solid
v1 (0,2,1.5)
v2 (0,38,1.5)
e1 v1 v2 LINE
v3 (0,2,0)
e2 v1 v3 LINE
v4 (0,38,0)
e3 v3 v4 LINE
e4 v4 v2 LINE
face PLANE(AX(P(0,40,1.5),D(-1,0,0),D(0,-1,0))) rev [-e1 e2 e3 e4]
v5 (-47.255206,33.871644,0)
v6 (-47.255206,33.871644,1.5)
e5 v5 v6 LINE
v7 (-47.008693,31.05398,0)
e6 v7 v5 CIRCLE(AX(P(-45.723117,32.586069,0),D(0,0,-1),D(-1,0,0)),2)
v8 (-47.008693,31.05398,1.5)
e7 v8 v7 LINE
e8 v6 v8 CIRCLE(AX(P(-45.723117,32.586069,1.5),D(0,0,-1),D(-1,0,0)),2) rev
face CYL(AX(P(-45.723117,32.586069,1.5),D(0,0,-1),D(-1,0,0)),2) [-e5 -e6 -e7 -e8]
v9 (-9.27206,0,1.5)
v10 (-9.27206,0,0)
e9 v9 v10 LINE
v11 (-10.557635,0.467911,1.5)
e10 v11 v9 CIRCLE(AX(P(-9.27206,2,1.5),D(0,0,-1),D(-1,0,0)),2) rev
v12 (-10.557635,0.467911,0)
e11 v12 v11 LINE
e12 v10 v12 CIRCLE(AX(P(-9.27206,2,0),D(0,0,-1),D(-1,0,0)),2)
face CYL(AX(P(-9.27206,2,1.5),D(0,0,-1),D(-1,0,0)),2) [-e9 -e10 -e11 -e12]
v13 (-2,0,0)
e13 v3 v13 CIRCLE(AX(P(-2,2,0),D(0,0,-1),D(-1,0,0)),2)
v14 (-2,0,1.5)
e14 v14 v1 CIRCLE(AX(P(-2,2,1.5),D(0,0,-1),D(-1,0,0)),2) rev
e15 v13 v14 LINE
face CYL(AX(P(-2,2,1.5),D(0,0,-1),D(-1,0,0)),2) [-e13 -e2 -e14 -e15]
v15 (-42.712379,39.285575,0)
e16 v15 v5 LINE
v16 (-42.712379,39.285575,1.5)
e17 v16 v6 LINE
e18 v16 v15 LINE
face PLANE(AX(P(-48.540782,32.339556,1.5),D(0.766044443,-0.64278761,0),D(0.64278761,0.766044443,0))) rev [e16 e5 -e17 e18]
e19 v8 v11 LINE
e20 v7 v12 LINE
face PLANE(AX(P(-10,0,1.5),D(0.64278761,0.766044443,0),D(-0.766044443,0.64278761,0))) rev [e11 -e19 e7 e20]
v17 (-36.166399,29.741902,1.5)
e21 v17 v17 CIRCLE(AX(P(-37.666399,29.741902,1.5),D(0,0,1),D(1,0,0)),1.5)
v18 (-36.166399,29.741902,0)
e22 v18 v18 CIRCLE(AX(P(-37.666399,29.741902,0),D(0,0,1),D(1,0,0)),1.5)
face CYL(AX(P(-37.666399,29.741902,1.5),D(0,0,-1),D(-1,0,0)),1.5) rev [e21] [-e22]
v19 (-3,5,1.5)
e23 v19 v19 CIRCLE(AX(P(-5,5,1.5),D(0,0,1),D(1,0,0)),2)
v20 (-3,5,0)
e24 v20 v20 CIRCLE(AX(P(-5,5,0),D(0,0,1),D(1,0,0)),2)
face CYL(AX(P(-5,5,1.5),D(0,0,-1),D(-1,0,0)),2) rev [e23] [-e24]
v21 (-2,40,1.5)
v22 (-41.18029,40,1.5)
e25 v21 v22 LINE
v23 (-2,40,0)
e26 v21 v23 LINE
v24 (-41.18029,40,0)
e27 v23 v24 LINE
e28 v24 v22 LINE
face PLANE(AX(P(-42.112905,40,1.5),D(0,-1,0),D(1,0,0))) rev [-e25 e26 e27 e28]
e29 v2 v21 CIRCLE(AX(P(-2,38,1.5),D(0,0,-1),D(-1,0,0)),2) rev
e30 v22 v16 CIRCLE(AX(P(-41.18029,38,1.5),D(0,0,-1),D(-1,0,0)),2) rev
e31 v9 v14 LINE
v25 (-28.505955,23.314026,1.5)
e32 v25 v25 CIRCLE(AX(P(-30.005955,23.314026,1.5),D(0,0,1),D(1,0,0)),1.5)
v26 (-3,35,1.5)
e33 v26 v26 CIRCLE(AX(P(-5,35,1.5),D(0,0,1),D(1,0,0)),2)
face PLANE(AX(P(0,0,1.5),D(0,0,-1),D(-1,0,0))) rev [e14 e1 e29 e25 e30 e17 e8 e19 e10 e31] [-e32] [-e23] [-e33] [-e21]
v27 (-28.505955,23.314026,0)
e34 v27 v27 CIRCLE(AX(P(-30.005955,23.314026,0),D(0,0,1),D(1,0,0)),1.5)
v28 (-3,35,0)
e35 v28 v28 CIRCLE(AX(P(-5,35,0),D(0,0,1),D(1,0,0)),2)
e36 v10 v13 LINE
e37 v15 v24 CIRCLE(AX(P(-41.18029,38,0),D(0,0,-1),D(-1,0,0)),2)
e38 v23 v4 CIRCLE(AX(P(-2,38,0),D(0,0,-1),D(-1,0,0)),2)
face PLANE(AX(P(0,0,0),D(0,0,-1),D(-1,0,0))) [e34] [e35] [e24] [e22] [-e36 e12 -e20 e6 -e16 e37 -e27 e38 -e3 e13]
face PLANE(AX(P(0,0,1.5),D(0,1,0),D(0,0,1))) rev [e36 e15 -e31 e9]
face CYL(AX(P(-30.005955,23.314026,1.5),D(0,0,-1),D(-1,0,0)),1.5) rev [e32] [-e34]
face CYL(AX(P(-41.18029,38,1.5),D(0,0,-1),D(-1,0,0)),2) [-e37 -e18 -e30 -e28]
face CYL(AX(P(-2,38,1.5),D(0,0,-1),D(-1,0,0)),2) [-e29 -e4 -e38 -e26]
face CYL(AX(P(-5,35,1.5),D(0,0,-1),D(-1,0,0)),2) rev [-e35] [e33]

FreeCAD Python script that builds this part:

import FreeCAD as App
import Part
import Sketcher

V = App.Vector
Q = App.Units.Quantity


def edges_at(feature, points):
    """Names of the edges that pass closest to the given points."""
    edges = feature.Shape.Edges
    near = lambda p: min(range(len(edges)), key=lambda i: edges[i].distToShape(Part.Vertex(*p))[0])
    return sorted({f"Edge{near(p) + 1}" for p in points})

doc = App.newDocument("Part")
body = doc.addObject("PartDesign::Body", "Body")

sketch1 = doc.addObject("Sketcher::SketchObject", "Sketch")
body.addObject(sketch1)
sketch1.AttachmentSupport = (doc.XY_Plane, [""])
sketch1.MapMode = "FlatFace"
sketch1.addGeometry([
    Part.LineSegment(V(-10, 0, 0), V(0, 0, 0)),
    Part.LineSegment(V(0, 0, 0), V(0, 40, 0)),
    Part.LineSegment(V(0, 40, 0), V(-42.1, 40, 0)),
    Part.LineSegment(V(-42.1, 40, 0), V(-48.5, 32.3, 0)),
    Part.LineSegment(V(-48.5, 32.3, 0), V(-10, 0, 0)),
    Part.Circle(V(-5, 5, 0), V(0, 0, 1), 2),
    Part.Circle(V(-5, 35, 0), V(0, 0, 1), 2),
    Part.Circle(V(-30, 23.3, 0), V(0, 0, 1), 1.5),
    Part.Circle(V(-37.7, 29.7, 0), V(0, 0, 1), 1.5),
], False)
sketch1.addConstraint([
    Sketcher.Constraint("Coincident", 0, 2, 1, 1),
    Sketcher.Constraint("Coincident", 1, 2, 2, 1),
    Sketcher.Constraint("Coincident", 2, 2, 3, 1),
    Sketcher.Constraint("Coincident", 3, 2, 4, 1),
    Sketcher.Constraint("Coincident", 4, 2, 0, 1),
    Sketcher.Constraint("Horizontal", 0),
    Sketcher.Constraint("Vertical", 1),
    Sketcher.Constraint("Horizontal", 2),
    Sketcher.Constraint("Coincident", 0, 2, -1, 1),
    Sketcher.Constraint("Equal", 5, 6),
    Sketcher.Constraint("Equal", 7, 8),
    Sketcher.Constraint("Perpendicular", 3, 4),
    Sketcher.Constraint("Vertical", 5, 3, 6, 3),
    Sketcher.Constraint("Diameter", 5, 4.0),
    Sketcher.Constraint("Diameter", 7, 3.0),
    Sketcher.Constraint("DistanceX", 0, 1, 0, 2, 10.0),
    Sketcher.Constraint("DistanceY", 1, 1, 1, 2, 40.0),
    Sketcher.Constraint("Angle", 3, Q("-130 deg")),
    Sketcher.Constraint("Distance", 3, 10.0),
    Sketcher.Constraint("DistanceX", 5, 3, -1, 1, 5.0),
    Sketcher.Constraint("DistanceY", -1, 1, 5, 3, 5.0),
    Sketcher.Constraint("DistanceY", -1, 1, 6, 3, 35.0),
    Sketcher.Constraint("DistanceX", 8, 3, -1, 1, 37.666399),
    Sketcher.Constraint("DistanceY", -1, 1, 8, 3, 29.741902),
    Sketcher.Constraint("DistanceX", 2, 2, 7, 3, 12.106951),
    Sketcher.Constraint("DistanceY", 7, 3, 3, 2, 9.02553),
])
pad1 = doc.addObject("PartDesign::Pad", "Pad")
body.addObject(pad1)
pad1.Profile = sketch1
pad1.Length = 1.5
doc.recompute()

fillet = doc.addObject("PartDesign::Fillet", "Fillet")
body.addObject(fillet)
fillet.Base = (pad1, edges_at(pad1, [
    (0, 0, 0.75),
    (-10, 0, 0.75),
    (-48.541, 32.34, 0.75),
    (-42.113, 40, 0.75),
    (0, 40, 0.75),
]))
fillet.Radius = 2

doc.recompute()
